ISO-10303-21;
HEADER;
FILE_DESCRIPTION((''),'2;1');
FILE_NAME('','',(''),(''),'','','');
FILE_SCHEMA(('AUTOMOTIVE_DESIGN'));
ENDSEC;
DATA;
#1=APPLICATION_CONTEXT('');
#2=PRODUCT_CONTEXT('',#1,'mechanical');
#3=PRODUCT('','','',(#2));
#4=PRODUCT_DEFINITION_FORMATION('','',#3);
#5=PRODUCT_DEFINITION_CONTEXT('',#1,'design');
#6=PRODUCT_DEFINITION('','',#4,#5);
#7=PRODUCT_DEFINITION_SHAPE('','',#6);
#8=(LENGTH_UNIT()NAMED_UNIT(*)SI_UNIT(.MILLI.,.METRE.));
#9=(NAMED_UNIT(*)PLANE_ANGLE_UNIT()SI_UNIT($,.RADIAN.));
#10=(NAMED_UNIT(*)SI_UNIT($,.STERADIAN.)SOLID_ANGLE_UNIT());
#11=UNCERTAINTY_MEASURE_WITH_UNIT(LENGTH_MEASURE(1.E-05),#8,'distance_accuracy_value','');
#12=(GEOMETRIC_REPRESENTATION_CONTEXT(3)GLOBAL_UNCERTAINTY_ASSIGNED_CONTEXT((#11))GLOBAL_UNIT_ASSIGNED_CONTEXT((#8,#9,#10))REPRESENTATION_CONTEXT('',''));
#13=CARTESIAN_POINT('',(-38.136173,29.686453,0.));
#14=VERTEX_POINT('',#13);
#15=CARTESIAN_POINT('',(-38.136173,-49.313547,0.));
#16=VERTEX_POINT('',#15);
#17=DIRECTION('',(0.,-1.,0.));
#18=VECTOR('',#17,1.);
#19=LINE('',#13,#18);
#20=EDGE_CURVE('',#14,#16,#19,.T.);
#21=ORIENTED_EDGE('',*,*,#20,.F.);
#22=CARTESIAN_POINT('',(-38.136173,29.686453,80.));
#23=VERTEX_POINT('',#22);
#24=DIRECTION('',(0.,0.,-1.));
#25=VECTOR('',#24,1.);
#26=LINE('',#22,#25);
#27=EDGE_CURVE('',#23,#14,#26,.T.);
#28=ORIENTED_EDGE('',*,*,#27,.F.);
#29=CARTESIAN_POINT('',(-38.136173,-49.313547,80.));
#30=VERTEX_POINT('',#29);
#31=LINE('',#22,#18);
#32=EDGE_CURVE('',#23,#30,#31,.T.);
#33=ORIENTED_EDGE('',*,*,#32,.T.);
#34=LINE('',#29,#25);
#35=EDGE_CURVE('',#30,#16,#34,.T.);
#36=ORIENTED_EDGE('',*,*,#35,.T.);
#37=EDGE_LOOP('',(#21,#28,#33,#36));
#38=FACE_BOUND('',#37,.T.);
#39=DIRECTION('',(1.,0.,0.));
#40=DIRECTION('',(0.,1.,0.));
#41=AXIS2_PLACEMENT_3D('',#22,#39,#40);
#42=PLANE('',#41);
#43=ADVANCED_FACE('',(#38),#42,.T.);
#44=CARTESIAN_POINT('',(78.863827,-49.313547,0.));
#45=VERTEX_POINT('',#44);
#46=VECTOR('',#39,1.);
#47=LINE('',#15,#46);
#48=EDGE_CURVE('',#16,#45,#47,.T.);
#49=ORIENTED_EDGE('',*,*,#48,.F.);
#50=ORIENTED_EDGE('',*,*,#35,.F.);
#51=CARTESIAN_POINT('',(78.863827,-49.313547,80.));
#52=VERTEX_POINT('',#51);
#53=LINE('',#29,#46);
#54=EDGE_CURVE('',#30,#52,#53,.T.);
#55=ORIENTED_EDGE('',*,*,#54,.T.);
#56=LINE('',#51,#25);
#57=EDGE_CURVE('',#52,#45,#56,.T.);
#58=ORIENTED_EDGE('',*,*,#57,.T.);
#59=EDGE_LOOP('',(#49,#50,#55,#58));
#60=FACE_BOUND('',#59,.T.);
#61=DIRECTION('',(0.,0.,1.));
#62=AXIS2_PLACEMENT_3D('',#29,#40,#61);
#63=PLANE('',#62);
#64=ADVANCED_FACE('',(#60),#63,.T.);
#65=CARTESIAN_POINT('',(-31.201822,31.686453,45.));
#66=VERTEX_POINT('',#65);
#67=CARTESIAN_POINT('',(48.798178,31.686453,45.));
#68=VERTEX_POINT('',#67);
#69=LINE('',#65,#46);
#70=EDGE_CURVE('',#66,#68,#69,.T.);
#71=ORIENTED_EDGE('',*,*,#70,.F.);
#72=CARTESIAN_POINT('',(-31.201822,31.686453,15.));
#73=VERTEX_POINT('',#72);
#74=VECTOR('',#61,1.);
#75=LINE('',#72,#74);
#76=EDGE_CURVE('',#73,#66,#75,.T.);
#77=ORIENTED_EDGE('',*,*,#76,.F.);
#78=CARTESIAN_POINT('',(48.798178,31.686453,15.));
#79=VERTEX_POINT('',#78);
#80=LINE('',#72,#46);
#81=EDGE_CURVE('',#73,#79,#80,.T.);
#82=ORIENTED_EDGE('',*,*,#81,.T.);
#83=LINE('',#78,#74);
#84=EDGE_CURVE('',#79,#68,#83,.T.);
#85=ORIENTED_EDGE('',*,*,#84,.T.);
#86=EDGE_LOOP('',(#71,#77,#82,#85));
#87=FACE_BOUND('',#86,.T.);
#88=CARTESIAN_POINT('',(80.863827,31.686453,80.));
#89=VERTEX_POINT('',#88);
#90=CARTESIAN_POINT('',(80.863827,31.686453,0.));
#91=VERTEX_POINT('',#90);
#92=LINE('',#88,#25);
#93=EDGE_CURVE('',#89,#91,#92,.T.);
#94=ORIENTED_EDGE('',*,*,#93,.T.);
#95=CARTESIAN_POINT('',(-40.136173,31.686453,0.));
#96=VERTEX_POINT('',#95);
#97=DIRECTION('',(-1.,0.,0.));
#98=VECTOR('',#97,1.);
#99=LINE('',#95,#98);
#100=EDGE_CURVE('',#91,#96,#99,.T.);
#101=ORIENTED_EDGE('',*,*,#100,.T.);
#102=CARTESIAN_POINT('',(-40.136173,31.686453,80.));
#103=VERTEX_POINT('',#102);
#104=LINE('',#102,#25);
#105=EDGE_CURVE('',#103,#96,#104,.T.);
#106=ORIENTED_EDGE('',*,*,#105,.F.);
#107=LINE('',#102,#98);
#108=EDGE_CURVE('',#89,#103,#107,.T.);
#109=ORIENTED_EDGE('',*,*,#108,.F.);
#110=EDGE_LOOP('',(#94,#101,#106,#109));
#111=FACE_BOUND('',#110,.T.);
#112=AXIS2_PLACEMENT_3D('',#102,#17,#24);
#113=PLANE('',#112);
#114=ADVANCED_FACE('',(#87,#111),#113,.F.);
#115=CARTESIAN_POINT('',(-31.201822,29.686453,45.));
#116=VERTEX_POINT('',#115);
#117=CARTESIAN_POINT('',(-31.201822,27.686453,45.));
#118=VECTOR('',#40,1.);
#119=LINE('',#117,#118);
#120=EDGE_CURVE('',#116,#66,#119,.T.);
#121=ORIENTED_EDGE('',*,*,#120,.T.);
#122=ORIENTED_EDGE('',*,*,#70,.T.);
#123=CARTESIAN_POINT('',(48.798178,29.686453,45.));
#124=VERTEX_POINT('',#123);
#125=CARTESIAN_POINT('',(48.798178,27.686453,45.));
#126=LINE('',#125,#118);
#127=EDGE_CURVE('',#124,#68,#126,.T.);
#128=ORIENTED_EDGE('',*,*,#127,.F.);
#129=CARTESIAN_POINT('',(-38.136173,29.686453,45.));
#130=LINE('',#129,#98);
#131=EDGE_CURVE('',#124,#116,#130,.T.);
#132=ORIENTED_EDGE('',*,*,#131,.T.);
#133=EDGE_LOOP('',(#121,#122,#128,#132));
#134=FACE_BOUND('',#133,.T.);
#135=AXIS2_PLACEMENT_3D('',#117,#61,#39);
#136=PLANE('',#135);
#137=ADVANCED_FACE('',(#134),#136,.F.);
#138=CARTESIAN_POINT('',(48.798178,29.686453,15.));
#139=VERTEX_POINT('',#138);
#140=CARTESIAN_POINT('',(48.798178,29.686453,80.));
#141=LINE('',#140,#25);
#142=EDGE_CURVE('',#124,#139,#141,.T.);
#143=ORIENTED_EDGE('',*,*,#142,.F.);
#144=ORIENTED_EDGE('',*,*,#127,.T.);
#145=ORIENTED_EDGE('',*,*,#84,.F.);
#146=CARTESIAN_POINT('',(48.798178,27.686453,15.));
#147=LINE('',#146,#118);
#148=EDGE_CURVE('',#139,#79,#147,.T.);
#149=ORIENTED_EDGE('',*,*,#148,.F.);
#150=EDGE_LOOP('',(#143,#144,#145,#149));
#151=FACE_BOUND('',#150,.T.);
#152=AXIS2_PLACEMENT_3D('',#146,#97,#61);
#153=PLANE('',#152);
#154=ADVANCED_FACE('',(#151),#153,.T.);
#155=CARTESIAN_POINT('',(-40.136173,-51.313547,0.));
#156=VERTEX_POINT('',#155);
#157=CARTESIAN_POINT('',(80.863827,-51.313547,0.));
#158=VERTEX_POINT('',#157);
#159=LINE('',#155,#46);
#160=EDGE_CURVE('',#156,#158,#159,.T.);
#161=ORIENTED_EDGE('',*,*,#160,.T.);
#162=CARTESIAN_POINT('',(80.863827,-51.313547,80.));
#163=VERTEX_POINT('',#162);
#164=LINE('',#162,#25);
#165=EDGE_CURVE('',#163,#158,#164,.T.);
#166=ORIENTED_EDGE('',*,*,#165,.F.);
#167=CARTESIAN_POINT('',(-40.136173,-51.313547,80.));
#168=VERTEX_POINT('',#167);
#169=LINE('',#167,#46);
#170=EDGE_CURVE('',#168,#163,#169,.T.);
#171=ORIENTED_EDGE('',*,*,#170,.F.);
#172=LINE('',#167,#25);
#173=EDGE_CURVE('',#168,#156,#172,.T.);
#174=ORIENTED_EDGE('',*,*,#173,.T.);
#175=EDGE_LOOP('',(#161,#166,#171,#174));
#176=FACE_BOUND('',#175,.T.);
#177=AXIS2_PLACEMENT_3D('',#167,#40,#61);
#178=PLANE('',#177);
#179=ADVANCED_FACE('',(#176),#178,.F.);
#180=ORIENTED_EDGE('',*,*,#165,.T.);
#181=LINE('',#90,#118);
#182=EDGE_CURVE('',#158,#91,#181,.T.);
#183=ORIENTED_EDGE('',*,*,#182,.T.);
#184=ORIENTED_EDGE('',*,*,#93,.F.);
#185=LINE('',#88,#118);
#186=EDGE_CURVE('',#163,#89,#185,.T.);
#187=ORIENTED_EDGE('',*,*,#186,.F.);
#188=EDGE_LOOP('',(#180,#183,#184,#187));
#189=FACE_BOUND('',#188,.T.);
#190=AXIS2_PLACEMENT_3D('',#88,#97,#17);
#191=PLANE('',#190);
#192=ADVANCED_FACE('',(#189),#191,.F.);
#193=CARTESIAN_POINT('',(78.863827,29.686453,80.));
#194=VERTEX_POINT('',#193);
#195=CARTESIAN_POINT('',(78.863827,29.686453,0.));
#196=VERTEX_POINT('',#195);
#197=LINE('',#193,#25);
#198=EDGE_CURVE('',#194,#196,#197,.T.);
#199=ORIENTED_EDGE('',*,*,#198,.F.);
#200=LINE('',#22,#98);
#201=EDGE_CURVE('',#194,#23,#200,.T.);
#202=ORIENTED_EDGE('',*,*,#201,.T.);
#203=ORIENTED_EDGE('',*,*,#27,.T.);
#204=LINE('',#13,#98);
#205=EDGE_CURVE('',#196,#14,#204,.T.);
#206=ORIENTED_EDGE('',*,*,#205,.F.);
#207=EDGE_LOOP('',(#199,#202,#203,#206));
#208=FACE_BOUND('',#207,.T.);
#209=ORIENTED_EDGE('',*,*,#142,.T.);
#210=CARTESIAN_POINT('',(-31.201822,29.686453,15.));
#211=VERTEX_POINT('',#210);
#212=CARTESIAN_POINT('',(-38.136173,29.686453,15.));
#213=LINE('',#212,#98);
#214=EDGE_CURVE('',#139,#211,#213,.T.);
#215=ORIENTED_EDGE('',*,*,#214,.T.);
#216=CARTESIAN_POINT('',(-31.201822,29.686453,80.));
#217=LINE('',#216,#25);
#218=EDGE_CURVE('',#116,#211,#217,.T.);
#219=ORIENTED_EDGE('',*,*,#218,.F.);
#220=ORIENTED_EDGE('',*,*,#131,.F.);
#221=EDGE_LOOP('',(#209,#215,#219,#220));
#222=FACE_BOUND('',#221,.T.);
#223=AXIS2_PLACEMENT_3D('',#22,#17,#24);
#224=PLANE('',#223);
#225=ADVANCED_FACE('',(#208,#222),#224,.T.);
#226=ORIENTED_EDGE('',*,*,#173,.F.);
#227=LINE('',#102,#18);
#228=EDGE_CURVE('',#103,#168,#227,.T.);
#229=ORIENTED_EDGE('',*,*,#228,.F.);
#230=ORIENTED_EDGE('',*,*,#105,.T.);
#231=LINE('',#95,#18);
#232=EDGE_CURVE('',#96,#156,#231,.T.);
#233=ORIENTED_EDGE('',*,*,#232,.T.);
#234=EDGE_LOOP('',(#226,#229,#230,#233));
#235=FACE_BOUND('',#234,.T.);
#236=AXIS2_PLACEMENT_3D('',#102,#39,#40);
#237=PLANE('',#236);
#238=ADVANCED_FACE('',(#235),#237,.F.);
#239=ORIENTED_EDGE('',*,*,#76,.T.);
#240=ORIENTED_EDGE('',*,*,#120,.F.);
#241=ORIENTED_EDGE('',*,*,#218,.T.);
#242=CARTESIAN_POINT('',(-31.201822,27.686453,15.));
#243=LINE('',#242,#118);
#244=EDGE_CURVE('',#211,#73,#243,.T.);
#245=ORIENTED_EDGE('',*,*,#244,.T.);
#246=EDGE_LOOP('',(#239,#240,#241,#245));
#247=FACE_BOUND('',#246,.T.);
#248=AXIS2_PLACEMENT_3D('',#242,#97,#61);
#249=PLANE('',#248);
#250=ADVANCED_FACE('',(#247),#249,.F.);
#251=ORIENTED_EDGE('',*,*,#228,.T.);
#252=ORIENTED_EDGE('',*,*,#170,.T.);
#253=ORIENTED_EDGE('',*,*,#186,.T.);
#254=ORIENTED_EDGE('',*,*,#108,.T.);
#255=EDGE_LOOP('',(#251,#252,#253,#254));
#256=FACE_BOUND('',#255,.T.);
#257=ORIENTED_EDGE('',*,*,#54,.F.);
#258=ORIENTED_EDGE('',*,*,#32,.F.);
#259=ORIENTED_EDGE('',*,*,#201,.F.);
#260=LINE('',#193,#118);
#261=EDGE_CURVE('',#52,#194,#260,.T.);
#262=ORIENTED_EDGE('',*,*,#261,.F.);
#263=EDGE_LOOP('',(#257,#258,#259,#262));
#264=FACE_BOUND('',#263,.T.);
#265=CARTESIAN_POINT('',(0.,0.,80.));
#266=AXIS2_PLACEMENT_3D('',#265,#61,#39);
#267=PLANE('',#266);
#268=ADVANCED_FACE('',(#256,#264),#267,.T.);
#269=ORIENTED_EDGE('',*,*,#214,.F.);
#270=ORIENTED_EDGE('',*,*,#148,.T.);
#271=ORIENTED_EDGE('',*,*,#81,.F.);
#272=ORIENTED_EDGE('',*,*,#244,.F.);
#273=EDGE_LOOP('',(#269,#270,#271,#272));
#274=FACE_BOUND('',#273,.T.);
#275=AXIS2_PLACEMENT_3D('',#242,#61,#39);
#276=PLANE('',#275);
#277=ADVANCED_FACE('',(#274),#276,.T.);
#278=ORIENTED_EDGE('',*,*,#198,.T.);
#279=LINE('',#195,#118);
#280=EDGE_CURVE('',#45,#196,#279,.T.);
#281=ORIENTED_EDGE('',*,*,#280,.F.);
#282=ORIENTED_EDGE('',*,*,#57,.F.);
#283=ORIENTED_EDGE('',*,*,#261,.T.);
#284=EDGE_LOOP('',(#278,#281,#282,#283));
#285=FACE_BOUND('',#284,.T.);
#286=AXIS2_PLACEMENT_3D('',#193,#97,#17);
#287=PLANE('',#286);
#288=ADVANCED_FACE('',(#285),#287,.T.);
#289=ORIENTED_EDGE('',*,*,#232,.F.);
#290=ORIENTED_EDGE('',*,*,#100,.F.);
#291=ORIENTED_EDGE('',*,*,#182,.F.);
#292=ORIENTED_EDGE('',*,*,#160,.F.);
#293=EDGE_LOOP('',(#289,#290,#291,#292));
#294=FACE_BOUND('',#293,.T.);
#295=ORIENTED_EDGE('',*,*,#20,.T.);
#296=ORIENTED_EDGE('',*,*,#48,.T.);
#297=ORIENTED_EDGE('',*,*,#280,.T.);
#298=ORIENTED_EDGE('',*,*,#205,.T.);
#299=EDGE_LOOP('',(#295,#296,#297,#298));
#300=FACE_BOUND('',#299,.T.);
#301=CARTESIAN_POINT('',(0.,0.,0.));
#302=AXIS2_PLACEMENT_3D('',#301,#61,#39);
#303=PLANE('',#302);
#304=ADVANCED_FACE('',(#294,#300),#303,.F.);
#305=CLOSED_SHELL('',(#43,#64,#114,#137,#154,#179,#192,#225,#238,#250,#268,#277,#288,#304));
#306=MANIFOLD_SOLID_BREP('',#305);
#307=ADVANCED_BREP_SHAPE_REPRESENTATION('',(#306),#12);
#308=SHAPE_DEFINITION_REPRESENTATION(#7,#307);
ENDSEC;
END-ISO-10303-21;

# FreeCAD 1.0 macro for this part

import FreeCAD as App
import Part
import Sketcher
Q = App.Units.Quantity

doc = App.newDocument("Part")
body = doc.addObject("PartDesign::Body", "Body")

sketch1 = body.newObject("Sketcher::SketchObject", "Sketch")
sketch1.AttachmentSupport = (doc.getObject("XY_Plane"), [""])
sketch1.MapMode = "FlatFace"
sketch1.addGeometry(Part.LineSegment(App.Vector(-40, 32, 0), App.Vector(-40, -51, 0)), False)
sketch1.addGeometry(Part.LineSegment(App.Vector(-40, -51, 0), App.Vector(81, -51, 0)), False)
sketch1.addGeometry(Part.LineSegment(App.Vector(81, -51, 0), App.Vector(81, 32, 0)), False)
sketch1.addGeometry(Part.LineSegment(App.Vector(81, 32, 0), App.Vector(-40, 32, 0)), False)
sketch1.addGeometry(Part.LineSegment(App.Vector(79, -49, 0), App.Vector(-38, -49, 0)), False)
sketch1.addGeometry(Part.LineSegment(App.Vector(-38, -49, 0), App.Vector(-38, 30, 0)), False)
sketch1.addGeometry(Part.LineSegment(App.Vector(-38, 30, 0), App.Vector(79, 30, 0)), False)
sketch1.addGeometry(Part.LineSegment(App.Vector(79, 30, 0), App.Vector(79, -49, 0)), False)
sketch1.addConstraint(Sketcher.Constraint("Coincident", 0, 2, 1, 1))
sketch1.addConstraint(Sketcher.Constraint("Coincident", 1, 2, 2, 1))
sketch1.addConstraint(Sketcher.Constraint("Coincident", 2, 2, 3, 1))
sketch1.addConstraint(Sketcher.Constraint("Coincident", 3, 2, 0, 1))
sketch1.addConstraint(Sketcher.Constraint("Coincident", 4, 2, 5, 1))
sketch1.addConstraint(Sketcher.Constraint("Coincident", 5, 2, 6, 1))
sketch1.addConstraint(Sketcher.Constraint("Coincident", 6, 2, 7, 1))
sketch1.addConstraint(Sketcher.Constraint("Coincident", 7, 2, 4, 1))
sketch1.addConstraint(Sketcher.Constraint("Vertical", 0))
sketch1.addConstraint(Sketcher.Constraint("Horizontal", 1))
sketch1.addConstraint(Sketcher.Constraint("Vertical", 2))
sketch1.addConstraint(Sketcher.Constraint("Horizontal", 3))
sketch1.addConstraint(Sketcher.Constraint("Horizontal", 4))
sketch1.addConstraint(Sketcher.Constraint("Vertical", 5))
sketch1.addConstraint(Sketcher.Constraint("Horizontal", 6))
sketch1.addConstraint(Sketcher.Constraint("Vertical", 7))
sketch1.addConstraint(Sketcher.Constraint("DistanceX", 1, 1, 1, 2, Q("121 mm")))
sketch1.addConstraint(Sketcher.Constraint("DistanceX", 4, 2, 4, 1, Q("117 mm")))
sketch1.addConstraint(Sketcher.Constraint("DistanceY", 0, 2, 0, 1, Q("83 mm")))
sketch1.addConstraint(Sketcher.Constraint("DistanceY", 5, 1, 5, 2, Q("79 mm")))
sketch1.addConstraint(Sketcher.Constraint("DistanceX", 0, 2, 4, 2, Q("2 mm")))
sketch1.addConstraint(Sketcher.Constraint("DistanceY", 0, 2, 4, 2, Q("2 mm")))
sketch1.addConstraint(Sketcher.Constraint("DistanceX", 0, 2, -1, 1, Q("40.136173 mm")))
sketch1.addConstraint(Sketcher.Constraint("DistanceY", 0, 2, -1, 1, Q("51.313547 mm")))
pad1 = body.newObject("PartDesign::Pad", "Pad")
pad1.Profile = sketch1
pad1.Length = 80

sketch2 = body.newObject("Sketcher::SketchObject", "Sketch001")
sketch2.AttachmentSupport = (doc.getObject("XZ_Plane"), [""])
sketch2.MapMode = "FlatFace"
sketch2.AttachmentOffset = App.Placement(App.Vector(0, 0, -31.686453), App.Rotation())
sketch2.addGeometry(Part.LineSegment(App.Vector(-31, 15, 0), App.Vector(-31, 45, 0)), False)
sketch2.addGeometry(Part.LineSegment(App.Vector(-31, 45, 0), App.Vector(49, 45, 0)), False)
sketch2.addGeometry(Part.LineSegment(App.Vector(49, 45, 0), App.Vector(49, 15, 0)), False)
sketch2.addGeometry(Part.LineSegment(App.Vector(49, 15, 0), App.Vector(-31, 15, 0)), False)
sketch2.addConstraint(Sketcher.Constraint("Coincident", 0, 2, 1, 1))
sketch2.addConstraint(Sketcher.Constraint("Coincident", 1, 2, 2, 1))
sketch2.addConstraint(Sketcher.Constraint("Coincident", 2, 2, 3, 1))
sketch2.addConstraint(Sketcher.Constraint("Coincident", 3, 2, 0, 1))
sketch2.addConstraint(Sketcher.Constraint("Vertical", 0))
sketch2.addConstraint(Sketcher.Constraint("Horizontal", 1))
sketch2.addConstraint(Sketcher.Constraint("Vertical", 2))
sketch2.addConstraint(Sketcher.Constraint("Horizontal", 3))
sketch2.addConstraint(Sketcher.Constraint("DistanceX", 1, 1, 1, 2, Q("80 mm")))
sketch2.addConstraint(Sketcher.Constraint("DistanceY", 0, 1, 0, 2, Q("30 mm")))
sketch2.addConstraint(Sketcher.Constraint("DistanceY", -1, 1, 0, 2, Q("45 mm")))
sketch2.addConstraint(Sketcher.Constraint("DistanceX", 0, 2, -1, 1, Q("31.201822 mm")))
pocket1 = body.newObject("PartDesign::Pocket", "Pocket")
pocket1.Profile = sketch2
pocket1.Length = 4
pocket1.Reversed = True

doc.recompute()
